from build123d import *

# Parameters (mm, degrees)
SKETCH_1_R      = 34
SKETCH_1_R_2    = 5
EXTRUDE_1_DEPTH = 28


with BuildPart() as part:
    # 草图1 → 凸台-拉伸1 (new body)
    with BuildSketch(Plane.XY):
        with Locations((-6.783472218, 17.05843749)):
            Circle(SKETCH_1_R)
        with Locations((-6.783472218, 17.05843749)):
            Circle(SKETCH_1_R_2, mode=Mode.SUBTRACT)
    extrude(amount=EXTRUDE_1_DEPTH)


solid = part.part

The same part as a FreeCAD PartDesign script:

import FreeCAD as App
import Part
import Sketcher

doc = App.newDocument("Part")
body = doc.addObject("PartDesign::Body", "Body")

# Sketch on XY plane
sketch1 = body.newObject("Sketcher::SketchObject", "Sketch")
sketch1.AttachmentSupport = (doc.getObject("XY_Plane"), [""])
sketch1.MapMode = "FlatFace"
sketch1.addGeometry([
    Part.Circle(App.Vector(-6.783472, 17.058437, 0), App.Vector(0, 0, 1), 34),
    Part.Circle(App.Vector(-6.783472, 17.058437, 0), App.Vector(0, 0, 1), 5),
], False)
sketch1.addConstraint([
    Sketcher.Constraint("Coincident", 1, 3, 0, 3),
    Sketcher.Constraint("Diameter", 0, 68.0),
    Sketcher.Constraint("Diameter", 1, 10.0),
    Sketcher.Constraint("DistanceX", 0, 3, -1, 1, 6.783472),
    Sketcher.Constraint("DistanceY", -1, 1, 0, 3, 17.058437),
])
pad1 = body.newObject("PartDesign::Pad", "Pad")
pad1.Profile = sketch1
pad1.Length = 28

doc.recompute()
